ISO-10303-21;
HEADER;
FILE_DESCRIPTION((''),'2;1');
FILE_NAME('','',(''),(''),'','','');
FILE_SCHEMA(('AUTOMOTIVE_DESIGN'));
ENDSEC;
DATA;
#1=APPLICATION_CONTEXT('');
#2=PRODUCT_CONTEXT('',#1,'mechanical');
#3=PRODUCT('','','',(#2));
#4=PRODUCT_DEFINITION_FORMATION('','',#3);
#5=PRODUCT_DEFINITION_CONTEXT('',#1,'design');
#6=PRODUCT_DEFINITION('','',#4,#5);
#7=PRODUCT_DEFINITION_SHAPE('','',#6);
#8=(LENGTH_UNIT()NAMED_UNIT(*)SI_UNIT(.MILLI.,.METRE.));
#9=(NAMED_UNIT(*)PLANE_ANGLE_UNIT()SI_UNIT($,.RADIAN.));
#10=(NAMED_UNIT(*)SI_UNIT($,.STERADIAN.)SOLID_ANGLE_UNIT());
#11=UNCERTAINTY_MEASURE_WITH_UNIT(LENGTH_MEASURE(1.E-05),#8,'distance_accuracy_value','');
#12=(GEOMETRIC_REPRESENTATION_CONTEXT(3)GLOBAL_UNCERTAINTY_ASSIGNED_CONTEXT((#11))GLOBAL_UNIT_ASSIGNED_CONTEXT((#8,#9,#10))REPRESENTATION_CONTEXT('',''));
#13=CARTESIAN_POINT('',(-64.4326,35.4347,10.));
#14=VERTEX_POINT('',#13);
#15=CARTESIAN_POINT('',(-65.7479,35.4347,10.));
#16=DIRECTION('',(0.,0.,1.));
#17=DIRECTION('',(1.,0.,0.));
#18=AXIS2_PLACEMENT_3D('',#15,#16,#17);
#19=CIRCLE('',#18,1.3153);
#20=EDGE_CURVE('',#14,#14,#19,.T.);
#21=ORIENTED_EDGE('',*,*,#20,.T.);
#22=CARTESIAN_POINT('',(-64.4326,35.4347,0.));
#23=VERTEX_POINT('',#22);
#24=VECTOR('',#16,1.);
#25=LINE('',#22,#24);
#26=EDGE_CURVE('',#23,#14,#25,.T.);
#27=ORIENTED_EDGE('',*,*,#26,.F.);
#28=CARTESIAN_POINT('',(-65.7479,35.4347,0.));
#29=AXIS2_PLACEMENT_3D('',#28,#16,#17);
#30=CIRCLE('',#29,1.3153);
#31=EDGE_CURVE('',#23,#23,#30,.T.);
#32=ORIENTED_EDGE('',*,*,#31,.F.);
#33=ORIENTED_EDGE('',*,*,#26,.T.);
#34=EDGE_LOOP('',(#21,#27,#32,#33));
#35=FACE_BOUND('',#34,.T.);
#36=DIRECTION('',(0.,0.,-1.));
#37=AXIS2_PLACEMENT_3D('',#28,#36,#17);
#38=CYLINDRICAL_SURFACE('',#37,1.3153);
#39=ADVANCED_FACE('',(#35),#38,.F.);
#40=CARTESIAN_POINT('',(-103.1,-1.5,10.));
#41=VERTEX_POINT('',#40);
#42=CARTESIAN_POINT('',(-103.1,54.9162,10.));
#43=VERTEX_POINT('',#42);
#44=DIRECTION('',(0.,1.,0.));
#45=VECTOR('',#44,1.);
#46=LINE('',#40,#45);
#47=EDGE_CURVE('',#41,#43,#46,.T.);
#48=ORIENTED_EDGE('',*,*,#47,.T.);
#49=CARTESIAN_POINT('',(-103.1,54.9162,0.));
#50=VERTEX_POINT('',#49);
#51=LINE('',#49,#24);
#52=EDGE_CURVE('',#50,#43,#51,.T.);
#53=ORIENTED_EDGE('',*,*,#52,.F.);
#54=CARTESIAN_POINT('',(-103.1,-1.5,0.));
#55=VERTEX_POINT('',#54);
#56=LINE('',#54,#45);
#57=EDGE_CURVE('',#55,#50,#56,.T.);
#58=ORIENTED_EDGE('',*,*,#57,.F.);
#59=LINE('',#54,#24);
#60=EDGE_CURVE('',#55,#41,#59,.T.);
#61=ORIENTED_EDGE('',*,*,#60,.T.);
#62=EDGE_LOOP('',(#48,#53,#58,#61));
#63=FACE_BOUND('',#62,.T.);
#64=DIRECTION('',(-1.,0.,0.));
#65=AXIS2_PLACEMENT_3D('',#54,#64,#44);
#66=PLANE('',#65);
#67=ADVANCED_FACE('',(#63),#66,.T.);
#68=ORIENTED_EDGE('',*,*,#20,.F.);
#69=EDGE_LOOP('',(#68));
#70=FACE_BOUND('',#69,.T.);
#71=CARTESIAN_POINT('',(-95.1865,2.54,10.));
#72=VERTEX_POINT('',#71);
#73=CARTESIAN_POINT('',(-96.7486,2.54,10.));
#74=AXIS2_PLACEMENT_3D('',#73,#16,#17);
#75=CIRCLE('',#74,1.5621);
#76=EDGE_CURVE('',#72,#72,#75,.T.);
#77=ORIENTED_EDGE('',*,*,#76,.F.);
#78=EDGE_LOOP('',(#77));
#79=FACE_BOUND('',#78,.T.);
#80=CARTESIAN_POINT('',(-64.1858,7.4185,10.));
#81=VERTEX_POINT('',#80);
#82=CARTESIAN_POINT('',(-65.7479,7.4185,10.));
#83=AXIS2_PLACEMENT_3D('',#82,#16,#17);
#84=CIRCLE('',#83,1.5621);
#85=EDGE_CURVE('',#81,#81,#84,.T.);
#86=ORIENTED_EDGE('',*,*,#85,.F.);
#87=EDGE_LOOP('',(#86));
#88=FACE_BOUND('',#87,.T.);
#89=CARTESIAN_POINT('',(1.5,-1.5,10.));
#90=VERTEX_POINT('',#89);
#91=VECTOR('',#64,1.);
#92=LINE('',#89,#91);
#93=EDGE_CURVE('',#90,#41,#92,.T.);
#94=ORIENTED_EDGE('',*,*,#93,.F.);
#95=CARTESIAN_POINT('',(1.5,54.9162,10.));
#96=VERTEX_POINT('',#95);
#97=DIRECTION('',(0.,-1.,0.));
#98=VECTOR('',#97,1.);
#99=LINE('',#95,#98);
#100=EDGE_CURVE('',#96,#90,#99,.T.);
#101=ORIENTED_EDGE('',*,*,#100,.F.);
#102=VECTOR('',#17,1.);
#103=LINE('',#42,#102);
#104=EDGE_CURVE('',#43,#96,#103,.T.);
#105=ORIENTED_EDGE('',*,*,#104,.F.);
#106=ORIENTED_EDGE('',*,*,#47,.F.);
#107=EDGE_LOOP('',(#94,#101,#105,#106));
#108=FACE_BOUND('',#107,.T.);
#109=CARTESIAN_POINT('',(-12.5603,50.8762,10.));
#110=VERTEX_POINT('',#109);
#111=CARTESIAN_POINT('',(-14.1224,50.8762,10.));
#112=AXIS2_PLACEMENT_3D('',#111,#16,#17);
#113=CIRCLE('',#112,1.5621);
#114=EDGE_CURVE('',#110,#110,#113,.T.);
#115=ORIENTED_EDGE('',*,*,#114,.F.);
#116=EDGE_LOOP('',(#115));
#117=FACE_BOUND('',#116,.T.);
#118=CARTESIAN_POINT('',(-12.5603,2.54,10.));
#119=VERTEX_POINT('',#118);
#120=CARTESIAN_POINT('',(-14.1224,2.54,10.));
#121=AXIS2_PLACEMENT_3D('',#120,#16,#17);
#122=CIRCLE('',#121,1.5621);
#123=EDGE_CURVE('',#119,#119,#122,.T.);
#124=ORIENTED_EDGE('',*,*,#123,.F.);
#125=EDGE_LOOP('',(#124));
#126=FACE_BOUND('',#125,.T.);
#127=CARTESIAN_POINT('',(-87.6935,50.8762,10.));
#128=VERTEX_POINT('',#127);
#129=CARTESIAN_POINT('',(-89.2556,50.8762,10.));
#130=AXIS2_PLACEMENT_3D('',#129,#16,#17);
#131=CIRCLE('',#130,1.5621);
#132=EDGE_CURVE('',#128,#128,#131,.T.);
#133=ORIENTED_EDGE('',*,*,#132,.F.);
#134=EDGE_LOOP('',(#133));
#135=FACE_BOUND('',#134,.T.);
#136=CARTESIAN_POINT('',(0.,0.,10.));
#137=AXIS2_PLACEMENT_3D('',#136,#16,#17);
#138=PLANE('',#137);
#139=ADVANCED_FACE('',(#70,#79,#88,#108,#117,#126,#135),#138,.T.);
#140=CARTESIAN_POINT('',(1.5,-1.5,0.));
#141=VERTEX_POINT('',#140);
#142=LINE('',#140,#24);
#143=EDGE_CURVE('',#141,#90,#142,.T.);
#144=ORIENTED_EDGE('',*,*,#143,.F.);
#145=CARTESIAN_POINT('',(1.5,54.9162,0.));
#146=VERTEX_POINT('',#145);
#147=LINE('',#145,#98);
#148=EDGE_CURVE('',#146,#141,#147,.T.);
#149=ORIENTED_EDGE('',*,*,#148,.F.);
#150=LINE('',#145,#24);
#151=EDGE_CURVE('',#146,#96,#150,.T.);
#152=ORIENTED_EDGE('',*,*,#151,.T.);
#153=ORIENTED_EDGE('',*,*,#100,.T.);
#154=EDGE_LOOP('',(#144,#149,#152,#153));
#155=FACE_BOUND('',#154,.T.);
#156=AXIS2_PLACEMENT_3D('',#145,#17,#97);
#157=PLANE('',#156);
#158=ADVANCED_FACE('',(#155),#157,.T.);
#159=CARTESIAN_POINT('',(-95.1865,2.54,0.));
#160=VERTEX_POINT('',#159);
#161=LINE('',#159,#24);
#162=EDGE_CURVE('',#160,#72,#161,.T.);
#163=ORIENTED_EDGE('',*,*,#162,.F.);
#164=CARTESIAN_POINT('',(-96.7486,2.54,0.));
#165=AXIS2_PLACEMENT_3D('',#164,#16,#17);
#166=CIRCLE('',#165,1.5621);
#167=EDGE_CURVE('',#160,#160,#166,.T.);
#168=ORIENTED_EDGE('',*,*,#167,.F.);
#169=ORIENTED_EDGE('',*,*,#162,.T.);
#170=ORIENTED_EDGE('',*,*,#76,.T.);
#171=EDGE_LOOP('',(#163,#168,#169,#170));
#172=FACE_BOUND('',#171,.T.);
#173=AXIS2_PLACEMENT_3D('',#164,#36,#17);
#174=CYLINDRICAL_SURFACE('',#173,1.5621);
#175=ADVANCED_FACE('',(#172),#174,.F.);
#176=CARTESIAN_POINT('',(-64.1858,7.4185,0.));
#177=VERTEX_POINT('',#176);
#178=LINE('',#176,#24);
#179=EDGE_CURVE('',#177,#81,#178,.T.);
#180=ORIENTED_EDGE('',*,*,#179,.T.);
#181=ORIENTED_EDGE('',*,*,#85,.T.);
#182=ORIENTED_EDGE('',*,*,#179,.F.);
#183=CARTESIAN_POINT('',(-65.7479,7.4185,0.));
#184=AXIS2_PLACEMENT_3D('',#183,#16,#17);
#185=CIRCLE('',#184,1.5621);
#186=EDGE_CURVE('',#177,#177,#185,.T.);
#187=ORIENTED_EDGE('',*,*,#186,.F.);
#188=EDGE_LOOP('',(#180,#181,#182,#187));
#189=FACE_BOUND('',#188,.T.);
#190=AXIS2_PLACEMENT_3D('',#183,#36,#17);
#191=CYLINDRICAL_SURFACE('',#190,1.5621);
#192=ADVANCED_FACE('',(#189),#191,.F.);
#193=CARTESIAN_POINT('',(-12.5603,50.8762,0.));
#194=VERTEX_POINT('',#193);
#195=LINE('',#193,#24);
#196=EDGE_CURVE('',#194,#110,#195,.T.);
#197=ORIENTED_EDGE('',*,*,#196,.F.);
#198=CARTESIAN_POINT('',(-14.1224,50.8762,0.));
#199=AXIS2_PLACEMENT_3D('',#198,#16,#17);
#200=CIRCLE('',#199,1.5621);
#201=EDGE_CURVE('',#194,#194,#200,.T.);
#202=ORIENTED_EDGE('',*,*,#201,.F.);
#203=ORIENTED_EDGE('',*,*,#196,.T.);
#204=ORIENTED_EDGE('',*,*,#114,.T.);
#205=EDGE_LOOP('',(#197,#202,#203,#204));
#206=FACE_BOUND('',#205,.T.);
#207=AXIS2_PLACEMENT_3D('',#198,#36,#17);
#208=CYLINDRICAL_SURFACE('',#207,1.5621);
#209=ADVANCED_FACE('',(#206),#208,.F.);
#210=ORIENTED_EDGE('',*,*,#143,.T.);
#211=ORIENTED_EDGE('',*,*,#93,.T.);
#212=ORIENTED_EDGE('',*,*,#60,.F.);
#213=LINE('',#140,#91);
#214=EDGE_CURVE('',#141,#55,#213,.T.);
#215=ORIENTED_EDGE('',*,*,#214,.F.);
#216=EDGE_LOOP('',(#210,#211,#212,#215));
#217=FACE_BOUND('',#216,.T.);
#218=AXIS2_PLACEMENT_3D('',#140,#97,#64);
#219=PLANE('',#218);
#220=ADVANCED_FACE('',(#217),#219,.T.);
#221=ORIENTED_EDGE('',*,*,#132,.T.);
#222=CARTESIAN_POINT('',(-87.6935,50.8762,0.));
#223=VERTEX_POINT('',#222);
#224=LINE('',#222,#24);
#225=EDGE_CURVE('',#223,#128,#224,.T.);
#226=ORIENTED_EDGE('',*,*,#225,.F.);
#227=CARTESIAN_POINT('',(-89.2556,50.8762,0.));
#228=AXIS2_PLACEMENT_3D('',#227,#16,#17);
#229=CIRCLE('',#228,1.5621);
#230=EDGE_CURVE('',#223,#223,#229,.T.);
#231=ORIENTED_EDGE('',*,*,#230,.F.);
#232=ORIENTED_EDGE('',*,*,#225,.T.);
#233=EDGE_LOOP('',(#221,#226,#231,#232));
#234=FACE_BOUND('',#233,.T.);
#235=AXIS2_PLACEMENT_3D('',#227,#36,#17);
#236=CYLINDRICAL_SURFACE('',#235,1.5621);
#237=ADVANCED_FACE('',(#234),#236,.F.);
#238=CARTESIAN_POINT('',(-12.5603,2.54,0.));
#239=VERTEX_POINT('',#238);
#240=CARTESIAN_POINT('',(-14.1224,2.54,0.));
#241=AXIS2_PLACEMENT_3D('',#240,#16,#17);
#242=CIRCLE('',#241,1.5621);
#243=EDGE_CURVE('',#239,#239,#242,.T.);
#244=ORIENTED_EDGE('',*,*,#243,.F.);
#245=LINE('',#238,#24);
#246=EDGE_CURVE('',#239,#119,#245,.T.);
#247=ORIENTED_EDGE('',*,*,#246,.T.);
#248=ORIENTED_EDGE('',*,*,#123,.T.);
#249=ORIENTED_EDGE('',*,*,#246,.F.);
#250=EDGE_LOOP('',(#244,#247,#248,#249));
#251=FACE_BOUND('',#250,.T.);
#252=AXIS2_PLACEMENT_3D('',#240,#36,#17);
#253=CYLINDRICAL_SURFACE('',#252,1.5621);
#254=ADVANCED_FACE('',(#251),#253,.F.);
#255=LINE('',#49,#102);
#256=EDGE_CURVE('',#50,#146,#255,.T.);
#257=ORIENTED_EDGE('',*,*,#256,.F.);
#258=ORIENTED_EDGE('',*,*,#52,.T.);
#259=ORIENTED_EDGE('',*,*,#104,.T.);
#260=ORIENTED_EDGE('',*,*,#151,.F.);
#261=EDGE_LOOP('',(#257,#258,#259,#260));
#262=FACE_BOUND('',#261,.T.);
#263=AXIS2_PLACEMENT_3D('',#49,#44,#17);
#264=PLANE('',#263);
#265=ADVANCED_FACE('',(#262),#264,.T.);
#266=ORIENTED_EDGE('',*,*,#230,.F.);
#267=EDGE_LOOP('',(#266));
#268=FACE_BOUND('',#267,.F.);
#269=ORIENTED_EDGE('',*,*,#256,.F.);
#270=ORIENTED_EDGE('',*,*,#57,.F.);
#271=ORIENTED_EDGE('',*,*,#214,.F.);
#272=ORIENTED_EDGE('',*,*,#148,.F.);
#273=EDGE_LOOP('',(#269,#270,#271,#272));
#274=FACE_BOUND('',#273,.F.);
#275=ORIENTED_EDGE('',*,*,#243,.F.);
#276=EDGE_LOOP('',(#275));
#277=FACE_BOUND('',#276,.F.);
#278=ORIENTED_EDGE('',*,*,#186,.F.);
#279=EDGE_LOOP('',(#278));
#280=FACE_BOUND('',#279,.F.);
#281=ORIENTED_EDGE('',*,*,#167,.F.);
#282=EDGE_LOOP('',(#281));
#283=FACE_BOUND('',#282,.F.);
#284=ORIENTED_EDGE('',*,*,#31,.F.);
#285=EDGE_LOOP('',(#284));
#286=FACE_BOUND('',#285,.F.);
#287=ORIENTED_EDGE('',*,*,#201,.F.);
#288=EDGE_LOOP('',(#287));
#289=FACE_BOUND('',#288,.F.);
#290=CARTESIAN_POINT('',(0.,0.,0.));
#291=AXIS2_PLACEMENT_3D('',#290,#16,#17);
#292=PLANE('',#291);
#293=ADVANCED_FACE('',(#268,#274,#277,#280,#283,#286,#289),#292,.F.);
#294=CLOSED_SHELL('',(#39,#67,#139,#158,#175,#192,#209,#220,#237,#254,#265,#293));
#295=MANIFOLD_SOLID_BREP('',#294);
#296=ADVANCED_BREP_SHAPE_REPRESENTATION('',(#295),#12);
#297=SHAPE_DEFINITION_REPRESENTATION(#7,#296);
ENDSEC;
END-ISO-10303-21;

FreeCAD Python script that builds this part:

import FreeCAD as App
import Part
import Sketcher

V = App.Vector
Q = App.Units.Quantity


def add_polygon(sketch, points):
    """Adds a closed chain of lines whose ends are joined by coincident constraints."""
    first, n = sketch.GeometryCount, len(points)
    for a, b in zip(points, points[1:] + points[:1]):
        sketch.addGeometry(Part.LineSegment(App.Vector(*a, 0), App.Vector(*b, 0)), False)
    for i in range(n):
        sketch.addConstraint(Sketcher.Constraint("Coincident", first + i, 2, first + (i + 1) % n, 1))

doc = App.newDocument("Part")
params = doc.addObject("Spreadsheet::Sheet", "Params")
for row, (alias, value) in enumerate([
    ("sketch1_diameter", "0.123 in"),
    ("pad1_length", "0.3937008 in"),
], start=1):
    params.set(f"A{row}", alias)
    params.set(f"B{row}", "=" + value)
    params.setAlias(f"B{row}", alias)

body = doc.addObject("PartDesign::Body", "Body")

sketch1 = body.newObject("Sketcher::SketchObject", "Sketch")
sketch1.AttachmentSupport = (doc.getObject("XY_Plane"), [""])
sketch1.MapMode = "FlatFace"
add_polygon(sketch1, [(1.5, 54.9), (-103.1, 54.9), (-103.1, -1.5), (1.5, -1.5)])
sketch1.addGeometry(Part.Circle(V(-14.1, 50.9, 0), V(0, 0, 1), 1.6), False)
sketch1.addGeometry(Part.Circle(V(-96.7, 2.5, 0), V(0, 0, 1), 1.6), False)
sketch1.addGeometry(Part.Circle(V(-65.7, 7.4, 0), V(0, 0, 1), 1.6), False)
sketch1.addGeometry(Part.Circle(V(-14.1, 2.5, 0), V(0, 0, 1), 1.6), False)
sketch1.addGeometry(Part.Circle(V(-65.7, 35.4, 0), V(0, 0, 1), 1.3), False)
sketch1.addGeometry(Part.Circle(V(-89.3, 50.9, 0), V(0, 0, 1), 1.6), False)
sketch1.addConstraint(Sketcher.Constraint("Horizontal", 0))
sketch1.addConstraint(Sketcher.Constraint("Vertical", 1))
sketch1.addConstraint(Sketcher.Constraint("Horizontal", 2))
sketch1.addConstraint(Sketcher.Constraint("Vertical", 3))
sketch1.addConstraint(Sketcher.Constraint("Equal", 4, 5))
sketch1.addConstraint(Sketcher.Constraint("Equal", 5, 6))
sketch1.addConstraint(Sketcher.Constraint("Equal", 6, 7))
sketch1.addConstraint(Sketcher.Constraint("Equal", 7, 9))
sketch1.addConstraint(Sketcher.Constraint("Horizontal", 5, 3, 7, 3))
sketch1.addConstraint(Sketcher.Constraint("Horizontal", 4, 3, 9, 3))
sketch1.addConstraint(Sketcher.Constraint("Vertical", 4, 3, 7, 3))
sketch1.addConstraint(Sketcher.Constraint("Vertical", 6, 3, 8, 3))
sketch1.addConstraint(Sketcher.Constraint("Diameter", 4, Q("0.123 in")))
sketch1.addConstraint(Sketcher.Constraint("DistanceY", -1, 1, 5, 3, Q("0.1 in")))
sketch1.addConstraint(Sketcher.Constraint("Diameter", 8, 2.6306))
sketch1.addConstraint(Sketcher.Constraint("DistanceY", 1, 2, -1, 1, 1.5))
sketch1.addConstraint(Sketcher.Constraint("DistanceX", -1, 1, 2, 2, 1.5))
sketch1.addConstraint(Sketcher.Constraint("DistanceY", 6, 3, 0, 2, Q("1.87 in")))
sketch1.addConstraint(Sketcher.Constraint("DistanceX", 0, 2, 0, 1, Q("4.1181 in")))
sketch1.addConstraint(Sketcher.Constraint("DistanceY", 1, 2, 1, 1, Q("2.2211 in")))
sketch1.addConstraint(Sketcher.Constraint("DistanceX", 4, 3, -1, 1, Q("0.556 in")))
sketch1.addConstraint(Sketcher.Constraint("DistanceY", -1, 1, 4, 3, Q("2.003 in")))
sketch1.addConstraint(Sketcher.Constraint("DistanceX", 5, 3, -1, 1, Q("3.809 in")))
sketch1.addConstraint(Sketcher.Constraint("DistanceX", 9, 3, -1, 1, Q("3.514 in")))
sketch1.addConstraint(Sketcher.Constraint("DistanceY", 6, 3, 8, 3, Q("1.103 in")))
sketch1.addConstraint(Sketcher.Constraint("DistanceX", 6, 3, -1, 1, Q("2.5885 in")))
sketch1.setExpression("Constraints[16]", "Params.sketch1_diameter")
pad1 = body.newObject("PartDesign::Pad", "Pad")
pad1.Profile = sketch1
pad1.setExpression("Length", "Params.pad1_length")

doc.recompute()
